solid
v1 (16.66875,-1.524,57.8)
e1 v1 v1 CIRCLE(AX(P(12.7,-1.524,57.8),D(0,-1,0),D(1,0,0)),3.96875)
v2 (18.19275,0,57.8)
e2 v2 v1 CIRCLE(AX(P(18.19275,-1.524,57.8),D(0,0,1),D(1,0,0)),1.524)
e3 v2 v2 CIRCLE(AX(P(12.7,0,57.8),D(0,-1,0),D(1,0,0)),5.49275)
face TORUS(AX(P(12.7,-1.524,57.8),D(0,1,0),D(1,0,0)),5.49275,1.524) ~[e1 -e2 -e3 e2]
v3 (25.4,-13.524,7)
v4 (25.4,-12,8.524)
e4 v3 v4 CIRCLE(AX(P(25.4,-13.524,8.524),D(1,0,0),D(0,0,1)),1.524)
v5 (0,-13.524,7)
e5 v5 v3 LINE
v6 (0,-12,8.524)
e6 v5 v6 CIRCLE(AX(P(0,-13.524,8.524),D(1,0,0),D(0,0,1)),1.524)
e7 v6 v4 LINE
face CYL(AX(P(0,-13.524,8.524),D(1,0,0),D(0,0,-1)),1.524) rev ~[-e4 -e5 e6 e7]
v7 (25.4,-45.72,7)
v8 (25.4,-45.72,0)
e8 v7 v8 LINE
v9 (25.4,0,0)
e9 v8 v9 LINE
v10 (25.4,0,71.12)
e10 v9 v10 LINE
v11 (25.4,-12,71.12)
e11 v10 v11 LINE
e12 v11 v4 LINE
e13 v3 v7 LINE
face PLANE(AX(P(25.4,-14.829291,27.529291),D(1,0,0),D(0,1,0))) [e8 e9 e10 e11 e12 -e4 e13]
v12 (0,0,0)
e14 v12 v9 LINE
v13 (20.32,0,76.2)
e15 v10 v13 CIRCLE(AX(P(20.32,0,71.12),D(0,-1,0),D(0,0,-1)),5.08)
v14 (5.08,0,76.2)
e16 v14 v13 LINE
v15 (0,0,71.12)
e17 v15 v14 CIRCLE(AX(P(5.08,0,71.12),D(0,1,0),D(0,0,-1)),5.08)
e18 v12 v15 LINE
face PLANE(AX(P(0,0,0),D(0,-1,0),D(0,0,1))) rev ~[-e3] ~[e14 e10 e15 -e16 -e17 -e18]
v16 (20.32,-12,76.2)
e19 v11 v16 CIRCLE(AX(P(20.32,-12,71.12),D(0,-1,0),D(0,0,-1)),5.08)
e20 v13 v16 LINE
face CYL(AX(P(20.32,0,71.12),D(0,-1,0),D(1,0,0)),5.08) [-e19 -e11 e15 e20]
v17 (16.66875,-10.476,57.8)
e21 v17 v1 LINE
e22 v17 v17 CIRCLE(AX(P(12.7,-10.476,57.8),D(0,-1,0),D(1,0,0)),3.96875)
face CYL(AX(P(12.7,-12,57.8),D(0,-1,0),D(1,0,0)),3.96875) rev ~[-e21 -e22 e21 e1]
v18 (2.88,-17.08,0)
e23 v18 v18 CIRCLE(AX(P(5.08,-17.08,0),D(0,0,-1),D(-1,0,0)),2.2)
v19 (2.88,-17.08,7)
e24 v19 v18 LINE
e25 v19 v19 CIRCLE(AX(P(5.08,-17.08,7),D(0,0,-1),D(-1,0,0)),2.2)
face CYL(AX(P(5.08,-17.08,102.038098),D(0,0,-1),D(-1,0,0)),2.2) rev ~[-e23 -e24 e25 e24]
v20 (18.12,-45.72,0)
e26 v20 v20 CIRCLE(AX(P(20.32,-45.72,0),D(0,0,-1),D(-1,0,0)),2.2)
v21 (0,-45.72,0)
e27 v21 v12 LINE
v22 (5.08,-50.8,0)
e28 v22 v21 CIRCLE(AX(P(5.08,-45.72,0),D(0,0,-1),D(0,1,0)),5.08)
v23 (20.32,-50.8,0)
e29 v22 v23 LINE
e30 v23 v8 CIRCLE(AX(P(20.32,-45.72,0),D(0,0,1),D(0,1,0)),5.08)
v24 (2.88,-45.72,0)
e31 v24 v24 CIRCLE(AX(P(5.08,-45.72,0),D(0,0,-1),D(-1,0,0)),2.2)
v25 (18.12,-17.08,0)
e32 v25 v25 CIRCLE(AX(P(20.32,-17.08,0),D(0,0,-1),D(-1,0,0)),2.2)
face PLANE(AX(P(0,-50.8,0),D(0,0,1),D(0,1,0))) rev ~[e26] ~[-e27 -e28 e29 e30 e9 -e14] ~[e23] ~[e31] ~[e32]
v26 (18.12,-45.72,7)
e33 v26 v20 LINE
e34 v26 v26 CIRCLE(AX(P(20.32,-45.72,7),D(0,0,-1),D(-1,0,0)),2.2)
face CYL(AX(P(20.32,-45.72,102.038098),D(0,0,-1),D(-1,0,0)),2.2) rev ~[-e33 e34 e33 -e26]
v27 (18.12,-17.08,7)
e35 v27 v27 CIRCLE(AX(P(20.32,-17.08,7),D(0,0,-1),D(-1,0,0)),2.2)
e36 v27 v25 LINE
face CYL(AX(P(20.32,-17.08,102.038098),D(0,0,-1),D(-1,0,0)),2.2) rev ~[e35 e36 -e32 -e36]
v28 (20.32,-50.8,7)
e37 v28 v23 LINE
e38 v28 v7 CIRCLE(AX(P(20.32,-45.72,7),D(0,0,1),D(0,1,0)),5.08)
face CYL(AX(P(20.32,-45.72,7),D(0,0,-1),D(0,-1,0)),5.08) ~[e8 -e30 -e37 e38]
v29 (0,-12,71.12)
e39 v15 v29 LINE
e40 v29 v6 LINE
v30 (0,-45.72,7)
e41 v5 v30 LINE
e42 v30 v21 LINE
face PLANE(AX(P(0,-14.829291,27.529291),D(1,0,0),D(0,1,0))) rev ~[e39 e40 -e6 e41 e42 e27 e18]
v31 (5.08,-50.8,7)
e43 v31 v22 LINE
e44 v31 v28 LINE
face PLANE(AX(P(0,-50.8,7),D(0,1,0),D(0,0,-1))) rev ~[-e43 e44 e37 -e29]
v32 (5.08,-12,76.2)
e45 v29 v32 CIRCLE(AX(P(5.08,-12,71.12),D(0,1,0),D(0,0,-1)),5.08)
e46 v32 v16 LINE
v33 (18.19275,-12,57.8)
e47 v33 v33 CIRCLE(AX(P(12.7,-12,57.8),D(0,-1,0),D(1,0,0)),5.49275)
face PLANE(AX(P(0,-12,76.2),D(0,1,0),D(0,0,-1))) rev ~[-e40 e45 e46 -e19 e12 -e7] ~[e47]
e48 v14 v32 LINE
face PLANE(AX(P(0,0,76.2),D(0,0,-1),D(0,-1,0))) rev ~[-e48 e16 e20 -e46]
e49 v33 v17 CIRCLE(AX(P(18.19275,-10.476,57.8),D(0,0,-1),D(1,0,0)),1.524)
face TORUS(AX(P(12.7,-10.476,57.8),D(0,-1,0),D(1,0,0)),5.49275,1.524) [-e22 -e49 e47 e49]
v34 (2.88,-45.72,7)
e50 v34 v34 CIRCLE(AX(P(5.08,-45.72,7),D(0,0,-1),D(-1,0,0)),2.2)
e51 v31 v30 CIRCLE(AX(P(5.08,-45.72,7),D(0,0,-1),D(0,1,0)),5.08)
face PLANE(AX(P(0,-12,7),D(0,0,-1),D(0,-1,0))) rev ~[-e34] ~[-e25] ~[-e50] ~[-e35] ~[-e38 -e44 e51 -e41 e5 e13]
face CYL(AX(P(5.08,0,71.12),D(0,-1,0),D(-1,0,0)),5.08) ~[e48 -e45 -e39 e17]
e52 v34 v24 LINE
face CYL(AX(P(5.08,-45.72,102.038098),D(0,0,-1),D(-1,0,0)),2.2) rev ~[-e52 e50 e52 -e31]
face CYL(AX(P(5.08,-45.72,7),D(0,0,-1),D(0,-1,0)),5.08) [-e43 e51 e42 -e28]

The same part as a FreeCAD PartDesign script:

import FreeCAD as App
import Part
import Sketcher

V = App.Vector
Q = App.Units.Quantity


def edges_at(feature, points):
    """Names of the edges that pass closest to the given points."""
    edges = feature.Shape.Edges
    near = lambda p: min(range(len(edges)), key=lambda i: edges[i].distToShape(Part.Vertex(*p))[0])
    return sorted({f"Edge{near(p) + 1}" for p in points})

doc = App.newDocument("Part")
body = doc.addObject("PartDesign::Body", "Body")

# Sketch on YZ plane
sketch1 = doc.addObject("Sketcher::SketchObject", "Sketch")
body.addObject(sketch1)
sketch1.AttachmentSupport = (doc.YZ_Plane, [""])
sketch1.MapMode = "FlatFace"
sketch1.addGeometry([
    Part.LineSegment(V(-50.8, 7, 0), V(-50.8, 0, 0)),  # 0
    Part.LineSegment(V(-50.8, 0, 0), V(0, 0, 0)),  # 1
    Part.LineSegment(V(0, 0, 0), V(0, 76.2, 0)),  # 2
    Part.LineSegment(V(0, 76.2, 0), V(-12, 76.2, 0)),  # 3
    Part.LineSegment(V(-12, 76.2, 0), V(-12, 7, 0)),  # 4
    Part.LineSegment(V(-12, 7, 0), V(-50.8, 7, 0)),  # 5
], False)
sketch1.addConstraint([
    Sketcher.Constraint("Coincident", 0, 2, 1, 1),
    Sketcher.Constraint("Coincident", 1, 2, 2, 1),
    Sketcher.Constraint("Coincident", 2, 2, 3, 1),
    Sketcher.Constraint("Coincident", 3, 2, 4, 1),
    Sketcher.Constraint("Coincident", 4, 2, 5, 1),
    Sketcher.Constraint("Coincident", 5, 2, 0, 1),
    Sketcher.Constraint("Vertical", 0),
    Sketcher.Constraint("Horizontal", 1),
    Sketcher.Constraint("Vertical", 2),
    Sketcher.Constraint("Horizontal", 3),
    Sketcher.Constraint("Vertical", 4),
    Sketcher.Constraint("Horizontal", 5),
    Sketcher.Constraint("Coincident", 1, 2, -1, 1),
    Sketcher.Constraint("DistanceX", 1, 1, 1, 2, Q("2 in")),
    Sketcher.Constraint("DistanceY", 2, 1, 2, 2, Q("3 in")),
    Sketcher.Constraint("DistanceX", 3, 2, 3, 1, 12.0),
    Sketcher.Constraint("DistanceY", 0, 2, 0, 1, 7.0),
])
pad1 = doc.addObject("PartDesign::Pad", "Pad")
body.addObject(pad1)
pad1.Profile = sketch1
pad1.Length = Q("1 in")

# Sketch on XY plane
sketch2 = doc.addObject("Sketcher::SketchObject", "Sketch001")
body.addObject(sketch2)
sketch2.AttachmentSupport = (doc.XY_Plane, [""])
sketch2.MapMode = "FlatFace"
sketch2.AttachmentOffset = App.Placement(V(0, 0, 7), App.Rotation())
sketch2.addGeometry([
    Part.Circle(V(20.32, -17.08, 0), V(0, 0, 1), 2.2),
    Part.Circle(V(5.08, -17.08, 0), V(0, 0, 1), 2.2),
    Part.Circle(V(5.08, -45.72, 0), V(0, 0, 1), 2.2),
    Part.Circle(V(20.32, -45.72, 0), V(0, 0, 1), 2.2),
], False)
sketch2.addConstraint([
    Sketcher.Constraint("Equal", 0, 1),
    Sketcher.Constraint("Equal", 1, 2),
    Sketcher.Constraint("Equal", 2, 3),
    Sketcher.Constraint("Horizontal", 0, 3, 1, 3),
    Sketcher.Constraint("Horizontal", 2, 3, 3, 3),
    Sketcher.Constraint("Vertical", 1, 3, 2, 3),
    Sketcher.Constraint("Vertical", 0, 3, 3, 3),
    Sketcher.Constraint("DistanceX", -1, 1, 0, 3, Q("0.8 in")),
    Sketcher.Constraint("DistanceX", -1, 1, 1, 3, Q("0.2 in")),
    Sketcher.Constraint("DistanceY", 2, 3, -1, 1, Q("1.8 in")),
    Sketcher.Constraint("Diameter", 0, 4.4),
    Sketcher.Constraint("DistanceY", 0, 3, -1, 1, 17.08),
])
doc.recompute()
hole = doc.addObject("PartDesign::Hole", "Hole")
body.addObject(hole)
hole.Profile = sketch2
hole.ThreadType = "None"
hole.Diameter = 4.4
hole.DepthType = "ThroughAll"

# Sketch on XZ plane
sketch3 = doc.addObject("Sketcher::SketchObject", "Sketch002")
body.addObject(sketch3)
sketch3.AttachmentSupport = (doc.XZ_Plane, [""])
sketch3.MapMode = "FlatFace"
sketch3.AttachmentOffset = App.Placement(V(0, 0, 12), App.Rotation())
sketch3.addGeometry(Part.Circle(V(12.7, 57.8, 0), V(0, 0, 1), 3.96875), False)
sketch3.addConstraint([
    Sketcher.Constraint("Diameter", 0, Q("0.3125 in")),
    Sketcher.Constraint("DistanceX", -1, 1, 0, 3, Q("0.5 in")),
    Sketcher.Constraint("DistanceY", -1, 1, 0, 3, 57.8),
])
pocket1 = doc.addObject("PartDesign::Pocket", "Pocket")
body.addObject(pocket1)
pocket1.Profile = sketch3
pocket1.Length = Q("1 in")
doc.recompute()

fillet = doc.addObject("PartDesign::Fillet", "Fillet")
body.addObject(fillet)
fillet.Base = (pocket1, edges_at(pocket1, [
    (25.4, -6, 76.2),
    (0, -6, 76.2),
    (25.4, -50.8, 3.5),
    (0, -50.8, 3.5),
]))
fillet.Radius = Q("0.2 in")
doc.recompute()

fillet2 = doc.addObject("PartDesign::Fillet", "Fillet001")
body.addObject(fillet2)
fillet2.Base = (fillet, edges_at(fillet, [(12.7, -12, 7), (8.731, -12, 57.8), (8.731, 0, 57.8)]))
fillet2.Radius = Q("0.06 in")

doc.recompute()
